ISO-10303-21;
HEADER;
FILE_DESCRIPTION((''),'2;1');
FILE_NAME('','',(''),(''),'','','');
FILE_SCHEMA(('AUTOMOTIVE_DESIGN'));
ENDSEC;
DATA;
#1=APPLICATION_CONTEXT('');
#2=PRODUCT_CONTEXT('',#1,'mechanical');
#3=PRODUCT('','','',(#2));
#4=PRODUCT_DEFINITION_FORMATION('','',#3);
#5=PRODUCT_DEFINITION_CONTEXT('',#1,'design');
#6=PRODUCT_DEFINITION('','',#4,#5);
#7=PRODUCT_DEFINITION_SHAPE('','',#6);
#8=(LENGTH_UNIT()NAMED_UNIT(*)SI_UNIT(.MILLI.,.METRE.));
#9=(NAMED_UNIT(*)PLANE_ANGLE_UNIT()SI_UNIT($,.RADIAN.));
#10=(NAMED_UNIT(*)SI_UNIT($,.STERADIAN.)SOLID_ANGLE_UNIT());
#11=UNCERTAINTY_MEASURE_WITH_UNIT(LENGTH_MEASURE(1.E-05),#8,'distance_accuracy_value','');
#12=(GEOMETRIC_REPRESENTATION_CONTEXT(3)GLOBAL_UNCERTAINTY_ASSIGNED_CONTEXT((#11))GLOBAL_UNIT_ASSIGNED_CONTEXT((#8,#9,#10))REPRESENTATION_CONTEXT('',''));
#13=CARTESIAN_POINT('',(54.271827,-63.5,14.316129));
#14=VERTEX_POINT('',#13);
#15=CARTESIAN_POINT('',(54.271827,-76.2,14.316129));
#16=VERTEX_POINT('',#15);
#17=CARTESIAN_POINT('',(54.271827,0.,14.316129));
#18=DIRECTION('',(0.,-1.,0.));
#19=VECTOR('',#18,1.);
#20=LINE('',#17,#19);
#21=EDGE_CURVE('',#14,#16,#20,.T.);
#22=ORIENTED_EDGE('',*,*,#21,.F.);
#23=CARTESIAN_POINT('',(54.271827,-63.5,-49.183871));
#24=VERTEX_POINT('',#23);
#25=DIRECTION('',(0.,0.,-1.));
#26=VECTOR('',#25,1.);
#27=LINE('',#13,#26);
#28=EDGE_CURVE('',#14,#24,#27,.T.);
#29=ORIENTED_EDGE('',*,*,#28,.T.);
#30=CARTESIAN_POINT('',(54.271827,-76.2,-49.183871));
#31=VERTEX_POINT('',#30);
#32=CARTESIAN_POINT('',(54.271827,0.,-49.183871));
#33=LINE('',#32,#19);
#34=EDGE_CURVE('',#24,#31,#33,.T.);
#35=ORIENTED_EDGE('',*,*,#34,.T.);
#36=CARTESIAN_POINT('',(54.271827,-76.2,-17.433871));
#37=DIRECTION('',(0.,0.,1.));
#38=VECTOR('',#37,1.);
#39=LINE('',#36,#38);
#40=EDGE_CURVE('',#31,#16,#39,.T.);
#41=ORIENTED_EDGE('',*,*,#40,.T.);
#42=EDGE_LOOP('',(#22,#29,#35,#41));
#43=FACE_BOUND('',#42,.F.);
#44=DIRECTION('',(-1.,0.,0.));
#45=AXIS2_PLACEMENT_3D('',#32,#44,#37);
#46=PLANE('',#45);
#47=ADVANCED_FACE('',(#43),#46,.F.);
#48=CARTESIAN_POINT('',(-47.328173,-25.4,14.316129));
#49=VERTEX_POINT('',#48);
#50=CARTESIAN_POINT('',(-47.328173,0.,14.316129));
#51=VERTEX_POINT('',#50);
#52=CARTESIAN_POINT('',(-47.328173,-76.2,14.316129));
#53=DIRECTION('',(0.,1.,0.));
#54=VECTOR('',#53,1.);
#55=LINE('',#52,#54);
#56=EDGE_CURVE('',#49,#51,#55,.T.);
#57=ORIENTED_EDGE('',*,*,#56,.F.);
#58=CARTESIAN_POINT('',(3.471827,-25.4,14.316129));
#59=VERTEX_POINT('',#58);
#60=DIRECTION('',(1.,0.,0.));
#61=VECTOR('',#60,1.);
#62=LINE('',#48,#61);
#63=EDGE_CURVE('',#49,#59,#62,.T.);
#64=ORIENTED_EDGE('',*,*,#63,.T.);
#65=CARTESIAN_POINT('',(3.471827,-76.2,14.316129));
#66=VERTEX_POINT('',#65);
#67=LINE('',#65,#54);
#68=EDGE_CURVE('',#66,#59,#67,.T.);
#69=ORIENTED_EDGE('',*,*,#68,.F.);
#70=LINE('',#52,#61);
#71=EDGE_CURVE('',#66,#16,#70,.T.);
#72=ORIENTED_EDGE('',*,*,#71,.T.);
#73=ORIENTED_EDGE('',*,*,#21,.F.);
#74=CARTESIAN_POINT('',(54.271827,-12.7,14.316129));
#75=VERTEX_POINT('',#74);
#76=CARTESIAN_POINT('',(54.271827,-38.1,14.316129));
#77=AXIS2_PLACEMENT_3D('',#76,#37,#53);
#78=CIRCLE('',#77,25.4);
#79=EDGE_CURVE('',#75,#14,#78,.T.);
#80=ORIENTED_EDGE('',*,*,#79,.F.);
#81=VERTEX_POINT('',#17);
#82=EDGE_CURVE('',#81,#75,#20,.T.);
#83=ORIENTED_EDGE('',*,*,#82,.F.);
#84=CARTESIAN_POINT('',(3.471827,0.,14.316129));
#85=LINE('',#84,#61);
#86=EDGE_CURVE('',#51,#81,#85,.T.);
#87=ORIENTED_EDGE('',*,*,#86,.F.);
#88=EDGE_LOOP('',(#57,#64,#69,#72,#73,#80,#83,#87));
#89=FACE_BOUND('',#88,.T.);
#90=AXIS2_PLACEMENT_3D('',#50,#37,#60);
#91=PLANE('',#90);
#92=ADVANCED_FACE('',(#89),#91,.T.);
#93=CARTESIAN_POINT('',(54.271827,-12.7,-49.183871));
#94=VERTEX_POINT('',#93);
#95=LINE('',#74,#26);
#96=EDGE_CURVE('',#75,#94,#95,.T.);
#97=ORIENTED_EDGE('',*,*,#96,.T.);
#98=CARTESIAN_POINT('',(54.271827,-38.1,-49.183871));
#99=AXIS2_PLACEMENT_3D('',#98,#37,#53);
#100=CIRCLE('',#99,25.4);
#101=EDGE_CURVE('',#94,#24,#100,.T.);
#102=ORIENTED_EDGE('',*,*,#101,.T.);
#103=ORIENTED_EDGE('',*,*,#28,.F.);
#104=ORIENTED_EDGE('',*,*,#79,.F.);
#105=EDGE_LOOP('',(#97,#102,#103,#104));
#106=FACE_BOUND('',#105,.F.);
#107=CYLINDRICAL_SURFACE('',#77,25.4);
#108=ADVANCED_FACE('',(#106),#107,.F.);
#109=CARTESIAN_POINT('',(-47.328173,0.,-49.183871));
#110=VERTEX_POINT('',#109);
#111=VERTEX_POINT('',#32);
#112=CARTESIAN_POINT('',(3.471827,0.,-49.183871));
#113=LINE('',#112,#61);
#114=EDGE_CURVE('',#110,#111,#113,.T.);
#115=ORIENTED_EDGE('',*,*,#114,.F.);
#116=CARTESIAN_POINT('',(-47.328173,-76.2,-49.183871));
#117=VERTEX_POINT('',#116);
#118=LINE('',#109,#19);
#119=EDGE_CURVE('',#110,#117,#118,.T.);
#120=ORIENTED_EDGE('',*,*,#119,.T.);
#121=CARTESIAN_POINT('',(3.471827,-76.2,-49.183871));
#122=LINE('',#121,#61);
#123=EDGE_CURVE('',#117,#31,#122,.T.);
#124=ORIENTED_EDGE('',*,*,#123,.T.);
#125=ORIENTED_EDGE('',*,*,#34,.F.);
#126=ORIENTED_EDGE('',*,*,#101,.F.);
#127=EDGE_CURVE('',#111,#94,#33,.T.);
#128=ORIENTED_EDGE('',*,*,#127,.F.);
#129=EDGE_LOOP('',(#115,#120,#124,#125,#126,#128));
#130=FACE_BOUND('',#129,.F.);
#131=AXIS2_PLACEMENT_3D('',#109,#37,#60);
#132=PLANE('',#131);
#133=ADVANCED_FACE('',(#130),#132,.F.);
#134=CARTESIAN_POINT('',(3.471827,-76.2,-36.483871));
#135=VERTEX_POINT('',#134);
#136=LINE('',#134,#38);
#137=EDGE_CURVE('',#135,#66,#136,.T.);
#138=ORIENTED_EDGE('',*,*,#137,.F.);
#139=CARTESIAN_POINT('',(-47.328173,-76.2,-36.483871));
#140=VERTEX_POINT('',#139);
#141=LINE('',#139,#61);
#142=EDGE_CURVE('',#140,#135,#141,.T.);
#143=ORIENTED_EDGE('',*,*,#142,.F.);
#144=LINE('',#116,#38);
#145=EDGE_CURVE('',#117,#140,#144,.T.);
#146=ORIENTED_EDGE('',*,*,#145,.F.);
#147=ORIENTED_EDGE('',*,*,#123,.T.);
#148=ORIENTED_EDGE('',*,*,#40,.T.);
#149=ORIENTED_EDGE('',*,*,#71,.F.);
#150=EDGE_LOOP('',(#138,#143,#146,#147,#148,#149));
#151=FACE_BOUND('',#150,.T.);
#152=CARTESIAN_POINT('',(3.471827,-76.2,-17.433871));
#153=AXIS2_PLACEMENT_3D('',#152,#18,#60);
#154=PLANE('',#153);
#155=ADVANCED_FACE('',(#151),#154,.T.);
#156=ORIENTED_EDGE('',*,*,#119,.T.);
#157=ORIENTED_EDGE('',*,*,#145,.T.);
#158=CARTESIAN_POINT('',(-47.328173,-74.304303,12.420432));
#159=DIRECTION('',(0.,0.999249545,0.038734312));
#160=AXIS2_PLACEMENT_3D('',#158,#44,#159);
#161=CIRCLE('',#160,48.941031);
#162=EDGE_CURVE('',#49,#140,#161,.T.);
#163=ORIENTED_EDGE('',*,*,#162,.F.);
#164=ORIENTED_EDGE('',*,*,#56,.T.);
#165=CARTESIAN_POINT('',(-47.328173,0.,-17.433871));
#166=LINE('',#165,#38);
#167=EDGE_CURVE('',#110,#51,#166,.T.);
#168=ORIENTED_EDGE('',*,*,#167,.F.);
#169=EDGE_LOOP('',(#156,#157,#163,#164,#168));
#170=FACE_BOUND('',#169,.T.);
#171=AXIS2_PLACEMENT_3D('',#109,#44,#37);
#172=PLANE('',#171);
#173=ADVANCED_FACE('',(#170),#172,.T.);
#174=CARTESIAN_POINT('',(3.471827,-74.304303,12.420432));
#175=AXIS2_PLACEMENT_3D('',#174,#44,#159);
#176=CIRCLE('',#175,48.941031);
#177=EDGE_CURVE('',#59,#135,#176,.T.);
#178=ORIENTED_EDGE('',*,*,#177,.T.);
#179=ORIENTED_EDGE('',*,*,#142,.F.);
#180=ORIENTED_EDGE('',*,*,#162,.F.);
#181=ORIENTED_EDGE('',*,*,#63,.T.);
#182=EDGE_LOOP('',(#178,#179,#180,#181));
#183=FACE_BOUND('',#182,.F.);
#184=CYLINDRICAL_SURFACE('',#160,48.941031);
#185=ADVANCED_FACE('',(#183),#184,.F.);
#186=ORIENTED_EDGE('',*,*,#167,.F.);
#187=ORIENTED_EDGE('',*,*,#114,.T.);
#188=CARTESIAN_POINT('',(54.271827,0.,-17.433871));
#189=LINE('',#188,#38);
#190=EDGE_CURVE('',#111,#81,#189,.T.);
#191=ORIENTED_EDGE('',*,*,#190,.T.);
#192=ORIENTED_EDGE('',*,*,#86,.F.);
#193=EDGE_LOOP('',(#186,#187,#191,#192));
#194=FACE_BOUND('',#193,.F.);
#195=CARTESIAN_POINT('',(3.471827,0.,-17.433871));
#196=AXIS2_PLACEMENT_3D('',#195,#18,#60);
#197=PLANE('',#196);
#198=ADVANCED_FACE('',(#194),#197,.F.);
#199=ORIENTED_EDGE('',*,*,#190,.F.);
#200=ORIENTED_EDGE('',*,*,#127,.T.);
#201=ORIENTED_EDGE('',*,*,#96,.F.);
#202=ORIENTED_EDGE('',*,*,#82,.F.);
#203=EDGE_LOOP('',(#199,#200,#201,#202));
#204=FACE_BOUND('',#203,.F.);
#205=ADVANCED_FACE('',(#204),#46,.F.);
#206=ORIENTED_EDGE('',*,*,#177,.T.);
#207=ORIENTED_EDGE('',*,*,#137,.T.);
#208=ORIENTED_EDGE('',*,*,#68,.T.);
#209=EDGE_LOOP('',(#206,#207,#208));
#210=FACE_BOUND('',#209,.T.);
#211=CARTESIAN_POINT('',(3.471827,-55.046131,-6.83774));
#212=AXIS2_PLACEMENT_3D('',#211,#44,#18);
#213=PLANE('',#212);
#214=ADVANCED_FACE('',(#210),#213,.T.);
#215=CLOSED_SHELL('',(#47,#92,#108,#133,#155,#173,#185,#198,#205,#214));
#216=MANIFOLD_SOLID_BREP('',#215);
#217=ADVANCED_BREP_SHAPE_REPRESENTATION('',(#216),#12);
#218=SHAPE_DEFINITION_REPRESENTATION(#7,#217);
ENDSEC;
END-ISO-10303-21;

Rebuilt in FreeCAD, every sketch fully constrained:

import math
import FreeCAD as App
import Part
import Sketcher
Q = App.Units.Quantity

doc = App.newDocument("Part")
params = doc.addObject("Spreadsheet::Sheet", "Params")
for row, (alias, value) in enumerate([
    ("sketch1_width", "4 in"),
    ("sketch1_height", "2.5 in"),
    ("pad1_length", "3 in"),
    ("sketch2_radius", "1 in"),
    ("pocket1_length", "2.5 in"),
    ("pocket2_length", "2 in"),
    ("sketch4_width", "2 in"),
    ("pocket3_length", "2 in"),
], start=1):
    params.set(f"A{row}", alias)
    params.set(f"B{row}", "=" + value)
    params.setAlias(f"B{row}", alias)

body = doc.addObject("PartDesign::Body", "Body")

sketch1 = body.newObject("Sketcher::SketchObject", "Sketch")
sketch1.AttachmentSupport = (doc.getObject("XZ_Plane"), [""])
sketch1.MapMode = "FlatFace"
sketch1.addGeometry(Part.LineSegment(App.Vector(-47.328173, 14.316129, 0), App.Vector(-47.328173, -49.183871, 0)), False)
sketch1.addGeometry(Part.LineSegment(App.Vector(-47.328173, -49.183871, 0), App.Vector(54.271827, -49.183871, 0)), False)
sketch1.addGeometry(Part.LineSegment(App.Vector(54.271827, -49.183871, 0), App.Vector(54.271827, 14.316129, 0)), False)
sketch1.addGeometry(Part.LineSegment(App.Vector(54.271827, 14.316129, 0), App.Vector(-47.328173, 14.316129, 0)), False)
sketch1.addConstraint(Sketcher.Constraint("Coincident", 0, 2, 1, 1))
sketch1.addConstraint(Sketcher.Constraint("Coincident", 1, 2, 2, 1))
sketch1.addConstraint(Sketcher.Constraint("Coincident", 2, 2, 3, 1))
sketch1.addConstraint(Sketcher.Constraint("Coincident", 3, 2, 0, 1))
sketch1.addConstraint(Sketcher.Constraint("Vertical", 0))
sketch1.addConstraint(Sketcher.Constraint("Horizontal", 1))
sketch1.addConstraint(Sketcher.Constraint("Vertical", 2))
sketch1.addConstraint(Sketcher.Constraint("Horizontal", 3))
sketch1.addConstraint(Sketcher.Constraint("DistanceX", 1, 1, 1, 2, Q("4 in")))
sketch1.addConstraint(Sketcher.Constraint("DistanceY", 0, 2, 0, 1, Q("2.5 in")))
sketch1.addConstraint(Sketcher.Constraint("DistanceY", 0, 2, -1, 1, Q("49.183871 mm")))
sketch1.addConstraint(Sketcher.Constraint("DistanceX", 0, 2, -1, 1, Q("47.328173 mm")))
sketch1.setExpression("Constraints[8]", "Params.sketch1_width")
sketch1.setExpression("Constraints[9]", "Params.sketch1_height")
pad1 = body.newObject("PartDesign::Pad", "Pad")
pad1.Profile = sketch1
pad1.setExpression("Length", "Params.pad1_length")

sketch2 = body.newObject("Sketcher::SketchObject", "Sketch001")
sketch2.AttachmentSupport = (doc.getObject("XY_Plane"), [""])
sketch2.MapMode = "FlatFace"
sketch2.AttachmentOffset = App.Placement(App.Vector(0, 0, 14.316129), App.Rotation())
sketch2.addGeometry(Part.LineSegment(App.Vector(54.271827, -63.5, 0), App.Vector(54.271827, -12.7, 0)), False)
sketch2.addGeometry(Part.ArcOfCircle(Part.Circle(App.Vector(54.271827, -38.1, 0), App.Vector(0, 0, 1), 25.4), math.radians(90), math.radians(270)), False)
sketch2.addConstraint(Sketcher.Constraint("Coincident", 0, 1, 1, 2))
sketch2.addConstraint(Sketcher.Constraint("Coincident", 1, 1, 0, 2))
sketch2.addConstraint(Sketcher.Constraint("Vertical", 0))
sketch2.addConstraint(Sketcher.Constraint("Vertical", 1, 3, 0, 1))
sketch2.addConstraint(Sketcher.Constraint("Radius", 1, Q("1 in")))
sketch2.addConstraint(Sketcher.Constraint("DistanceY", 1, 3, -1, 1, Q("1.5 in")))
sketch2.addConstraint(Sketcher.Constraint("DistanceX", -1, 1, 1, 3, Q("54.271827 mm")))
sketch2.setExpression("Constraints[4]", "Params.sketch2_radius")
pocket1 = body.newObject("PartDesign::Pocket", "Pocket")
pocket1.Profile = sketch2
pocket1.setExpression("Length", "Params.pocket1_length")

sketch3 = body.newObject("Sketcher::SketchObject", "Sketch002")
sketch3.AttachmentSupport = (doc.getObject("YZ_Plane"), [""])
sketch3.MapMode = "FlatFace"
sketch3.AttachmentOffset = App.Placement(App.Vector(0, 0, -47.328173), App.Rotation())
sketch3.addGeometry(Part.ArcOfCircle(Part.Circle(App.Vector(-76.2, 14.316129, 0), App.Vector(0, 0, 1), 53.788934), math.radians(180), math.radians(270)), False)
sketch3.addGeometry(Part.ArcOfCircle(Part.Circle(App.Vector(-76.2, 14.316129, 0), App.Vector(0, 0, 1), 53.788934), math.radians(0), math.radians(180)), False)
sketch3.addGeometry(Part.LineSegment(App.Vector(-22.411066, 14.316129, 0), App.Vector(-76.2, 14.316129, 0)), False)
sketch3.addGeometry(Part.LineSegment(App.Vector(-76.2, 14.316129, 0), App.Vector(-76.2, -39.472805, 0)), False)
sketch3.addConstraint(Sketcher.Constraint("Tangent", 0, 1, 1, 2))
sketch3.addConstraint(Sketcher.Constraint("Coincident", 1, 1, 2, 1))
sketch3.addConstraint(Sketcher.Constraint("Coincident", 2, 2, 3, 1))
sketch3.addConstraint(Sketcher.Constraint("Coincident", 3, 2, 0, 2))
sketch3.addConstraint(Sketcher.Constraint("Horizontal", 2))
sketch3.addConstraint(Sketcher.Constraint("Vertical", 3))
sketch3.addConstraint(Sketcher.Constraint("Coincident", 2, 2, 0, 3))
sketch3.addConstraint(Sketcher.Constraint("Equal", 0, 1))
sketch3.addConstraint(Sketcher.Constraint("Horizontal", 1, 3, 0, 1))
sketch3.addConstraint(Sketcher.Constraint("DistanceX", 0, 3, -1, 1, Q("3 in")))
sketch3.addConstraint(Sketcher.Constraint("Radius", 0, Q("53.788934 mm")))
sketch3.addConstraint(Sketcher.Constraint("DistanceY", -1, 1, 0, 3, Q("14.316129 mm")))
pocket2 = body.newObject("PartDesign::Pocket", "Pocket001")
pocket2.Profile = sketch3
pocket2.setExpression("Length", "Params.pocket2_length")
pocket2.Reversed = True

sketch4 = body.newObject("Sketcher::SketchObject", "Sketch003")
sketch4.AttachmentSupport = (doc.getObject("YZ_Plane"), [""])
sketch4.MapMode = "FlatFace"
sketch4.AttachmentOffset = App.Placement(App.Vector(0, 0, -47.328173), App.Rotation())
sketch4.addGeometry(Part.LineSegment(App.Vector(-76.2, 14.316129, 0), App.Vector(-25.4, 14.316129, 0)), False)
sketch4.addGeometry(Part.ArcOfCircle(Part.Circle(App.Vector(-74.304303, 12.420432, 0), App.Vector(0, 0, 1), 48.941031), math.radians(-92.219868), math.radians(2.219868)), False)
sketch4.addGeometry(Part.LineSegment(App.Vector(-76.2, -36.483871, 0), App.Vector(-76.2, 14.316129, 0)), False)
sketch4.addConstraint(Sketcher.Constraint("Coincident", 0, 2, 1, 2))
sketch4.addConstraint(Sketcher.Constraint("Coincident", 1, 1, 2, 1))
sketch4.addConstraint(Sketcher.Constraint("Coincident", 2, 2, 0, 1))
sketch4.addConstraint(Sketcher.Constraint("Horizontal", 0))
sketch4.addConstraint(Sketcher.Constraint("Vertical", 2))
sketch4.addConstraint(Sketcher.Constraint("Equal", 0, 2))
sketch4.addConstraint(Sketcher.Constraint("DistanceX", 0, 1, 0, 2, Q("2 in")))
sketch4.addConstraint(Sketcher.Constraint("DistanceX", 0, 2, -1, 1, Q("1 in")))
sketch4.addConstraint(Sketcher.Constraint("Radius", 1, Q("48.941031 mm")))
sketch4.addConstraint(Sketcher.Constraint("DistanceY", -1, 1, 1, 3, Q("12.420432 mm")))
sketch4.setExpression("Constraints[6]", "Params.sketch4_width")
pocket3 = body.newObject("PartDesign::Pocket", "Pocket002")
pocket3.Profile = sketch4
pocket3.setExpression("Length", "Params.pocket3_length")
pocket3.Reversed = True

doc.recompute()
